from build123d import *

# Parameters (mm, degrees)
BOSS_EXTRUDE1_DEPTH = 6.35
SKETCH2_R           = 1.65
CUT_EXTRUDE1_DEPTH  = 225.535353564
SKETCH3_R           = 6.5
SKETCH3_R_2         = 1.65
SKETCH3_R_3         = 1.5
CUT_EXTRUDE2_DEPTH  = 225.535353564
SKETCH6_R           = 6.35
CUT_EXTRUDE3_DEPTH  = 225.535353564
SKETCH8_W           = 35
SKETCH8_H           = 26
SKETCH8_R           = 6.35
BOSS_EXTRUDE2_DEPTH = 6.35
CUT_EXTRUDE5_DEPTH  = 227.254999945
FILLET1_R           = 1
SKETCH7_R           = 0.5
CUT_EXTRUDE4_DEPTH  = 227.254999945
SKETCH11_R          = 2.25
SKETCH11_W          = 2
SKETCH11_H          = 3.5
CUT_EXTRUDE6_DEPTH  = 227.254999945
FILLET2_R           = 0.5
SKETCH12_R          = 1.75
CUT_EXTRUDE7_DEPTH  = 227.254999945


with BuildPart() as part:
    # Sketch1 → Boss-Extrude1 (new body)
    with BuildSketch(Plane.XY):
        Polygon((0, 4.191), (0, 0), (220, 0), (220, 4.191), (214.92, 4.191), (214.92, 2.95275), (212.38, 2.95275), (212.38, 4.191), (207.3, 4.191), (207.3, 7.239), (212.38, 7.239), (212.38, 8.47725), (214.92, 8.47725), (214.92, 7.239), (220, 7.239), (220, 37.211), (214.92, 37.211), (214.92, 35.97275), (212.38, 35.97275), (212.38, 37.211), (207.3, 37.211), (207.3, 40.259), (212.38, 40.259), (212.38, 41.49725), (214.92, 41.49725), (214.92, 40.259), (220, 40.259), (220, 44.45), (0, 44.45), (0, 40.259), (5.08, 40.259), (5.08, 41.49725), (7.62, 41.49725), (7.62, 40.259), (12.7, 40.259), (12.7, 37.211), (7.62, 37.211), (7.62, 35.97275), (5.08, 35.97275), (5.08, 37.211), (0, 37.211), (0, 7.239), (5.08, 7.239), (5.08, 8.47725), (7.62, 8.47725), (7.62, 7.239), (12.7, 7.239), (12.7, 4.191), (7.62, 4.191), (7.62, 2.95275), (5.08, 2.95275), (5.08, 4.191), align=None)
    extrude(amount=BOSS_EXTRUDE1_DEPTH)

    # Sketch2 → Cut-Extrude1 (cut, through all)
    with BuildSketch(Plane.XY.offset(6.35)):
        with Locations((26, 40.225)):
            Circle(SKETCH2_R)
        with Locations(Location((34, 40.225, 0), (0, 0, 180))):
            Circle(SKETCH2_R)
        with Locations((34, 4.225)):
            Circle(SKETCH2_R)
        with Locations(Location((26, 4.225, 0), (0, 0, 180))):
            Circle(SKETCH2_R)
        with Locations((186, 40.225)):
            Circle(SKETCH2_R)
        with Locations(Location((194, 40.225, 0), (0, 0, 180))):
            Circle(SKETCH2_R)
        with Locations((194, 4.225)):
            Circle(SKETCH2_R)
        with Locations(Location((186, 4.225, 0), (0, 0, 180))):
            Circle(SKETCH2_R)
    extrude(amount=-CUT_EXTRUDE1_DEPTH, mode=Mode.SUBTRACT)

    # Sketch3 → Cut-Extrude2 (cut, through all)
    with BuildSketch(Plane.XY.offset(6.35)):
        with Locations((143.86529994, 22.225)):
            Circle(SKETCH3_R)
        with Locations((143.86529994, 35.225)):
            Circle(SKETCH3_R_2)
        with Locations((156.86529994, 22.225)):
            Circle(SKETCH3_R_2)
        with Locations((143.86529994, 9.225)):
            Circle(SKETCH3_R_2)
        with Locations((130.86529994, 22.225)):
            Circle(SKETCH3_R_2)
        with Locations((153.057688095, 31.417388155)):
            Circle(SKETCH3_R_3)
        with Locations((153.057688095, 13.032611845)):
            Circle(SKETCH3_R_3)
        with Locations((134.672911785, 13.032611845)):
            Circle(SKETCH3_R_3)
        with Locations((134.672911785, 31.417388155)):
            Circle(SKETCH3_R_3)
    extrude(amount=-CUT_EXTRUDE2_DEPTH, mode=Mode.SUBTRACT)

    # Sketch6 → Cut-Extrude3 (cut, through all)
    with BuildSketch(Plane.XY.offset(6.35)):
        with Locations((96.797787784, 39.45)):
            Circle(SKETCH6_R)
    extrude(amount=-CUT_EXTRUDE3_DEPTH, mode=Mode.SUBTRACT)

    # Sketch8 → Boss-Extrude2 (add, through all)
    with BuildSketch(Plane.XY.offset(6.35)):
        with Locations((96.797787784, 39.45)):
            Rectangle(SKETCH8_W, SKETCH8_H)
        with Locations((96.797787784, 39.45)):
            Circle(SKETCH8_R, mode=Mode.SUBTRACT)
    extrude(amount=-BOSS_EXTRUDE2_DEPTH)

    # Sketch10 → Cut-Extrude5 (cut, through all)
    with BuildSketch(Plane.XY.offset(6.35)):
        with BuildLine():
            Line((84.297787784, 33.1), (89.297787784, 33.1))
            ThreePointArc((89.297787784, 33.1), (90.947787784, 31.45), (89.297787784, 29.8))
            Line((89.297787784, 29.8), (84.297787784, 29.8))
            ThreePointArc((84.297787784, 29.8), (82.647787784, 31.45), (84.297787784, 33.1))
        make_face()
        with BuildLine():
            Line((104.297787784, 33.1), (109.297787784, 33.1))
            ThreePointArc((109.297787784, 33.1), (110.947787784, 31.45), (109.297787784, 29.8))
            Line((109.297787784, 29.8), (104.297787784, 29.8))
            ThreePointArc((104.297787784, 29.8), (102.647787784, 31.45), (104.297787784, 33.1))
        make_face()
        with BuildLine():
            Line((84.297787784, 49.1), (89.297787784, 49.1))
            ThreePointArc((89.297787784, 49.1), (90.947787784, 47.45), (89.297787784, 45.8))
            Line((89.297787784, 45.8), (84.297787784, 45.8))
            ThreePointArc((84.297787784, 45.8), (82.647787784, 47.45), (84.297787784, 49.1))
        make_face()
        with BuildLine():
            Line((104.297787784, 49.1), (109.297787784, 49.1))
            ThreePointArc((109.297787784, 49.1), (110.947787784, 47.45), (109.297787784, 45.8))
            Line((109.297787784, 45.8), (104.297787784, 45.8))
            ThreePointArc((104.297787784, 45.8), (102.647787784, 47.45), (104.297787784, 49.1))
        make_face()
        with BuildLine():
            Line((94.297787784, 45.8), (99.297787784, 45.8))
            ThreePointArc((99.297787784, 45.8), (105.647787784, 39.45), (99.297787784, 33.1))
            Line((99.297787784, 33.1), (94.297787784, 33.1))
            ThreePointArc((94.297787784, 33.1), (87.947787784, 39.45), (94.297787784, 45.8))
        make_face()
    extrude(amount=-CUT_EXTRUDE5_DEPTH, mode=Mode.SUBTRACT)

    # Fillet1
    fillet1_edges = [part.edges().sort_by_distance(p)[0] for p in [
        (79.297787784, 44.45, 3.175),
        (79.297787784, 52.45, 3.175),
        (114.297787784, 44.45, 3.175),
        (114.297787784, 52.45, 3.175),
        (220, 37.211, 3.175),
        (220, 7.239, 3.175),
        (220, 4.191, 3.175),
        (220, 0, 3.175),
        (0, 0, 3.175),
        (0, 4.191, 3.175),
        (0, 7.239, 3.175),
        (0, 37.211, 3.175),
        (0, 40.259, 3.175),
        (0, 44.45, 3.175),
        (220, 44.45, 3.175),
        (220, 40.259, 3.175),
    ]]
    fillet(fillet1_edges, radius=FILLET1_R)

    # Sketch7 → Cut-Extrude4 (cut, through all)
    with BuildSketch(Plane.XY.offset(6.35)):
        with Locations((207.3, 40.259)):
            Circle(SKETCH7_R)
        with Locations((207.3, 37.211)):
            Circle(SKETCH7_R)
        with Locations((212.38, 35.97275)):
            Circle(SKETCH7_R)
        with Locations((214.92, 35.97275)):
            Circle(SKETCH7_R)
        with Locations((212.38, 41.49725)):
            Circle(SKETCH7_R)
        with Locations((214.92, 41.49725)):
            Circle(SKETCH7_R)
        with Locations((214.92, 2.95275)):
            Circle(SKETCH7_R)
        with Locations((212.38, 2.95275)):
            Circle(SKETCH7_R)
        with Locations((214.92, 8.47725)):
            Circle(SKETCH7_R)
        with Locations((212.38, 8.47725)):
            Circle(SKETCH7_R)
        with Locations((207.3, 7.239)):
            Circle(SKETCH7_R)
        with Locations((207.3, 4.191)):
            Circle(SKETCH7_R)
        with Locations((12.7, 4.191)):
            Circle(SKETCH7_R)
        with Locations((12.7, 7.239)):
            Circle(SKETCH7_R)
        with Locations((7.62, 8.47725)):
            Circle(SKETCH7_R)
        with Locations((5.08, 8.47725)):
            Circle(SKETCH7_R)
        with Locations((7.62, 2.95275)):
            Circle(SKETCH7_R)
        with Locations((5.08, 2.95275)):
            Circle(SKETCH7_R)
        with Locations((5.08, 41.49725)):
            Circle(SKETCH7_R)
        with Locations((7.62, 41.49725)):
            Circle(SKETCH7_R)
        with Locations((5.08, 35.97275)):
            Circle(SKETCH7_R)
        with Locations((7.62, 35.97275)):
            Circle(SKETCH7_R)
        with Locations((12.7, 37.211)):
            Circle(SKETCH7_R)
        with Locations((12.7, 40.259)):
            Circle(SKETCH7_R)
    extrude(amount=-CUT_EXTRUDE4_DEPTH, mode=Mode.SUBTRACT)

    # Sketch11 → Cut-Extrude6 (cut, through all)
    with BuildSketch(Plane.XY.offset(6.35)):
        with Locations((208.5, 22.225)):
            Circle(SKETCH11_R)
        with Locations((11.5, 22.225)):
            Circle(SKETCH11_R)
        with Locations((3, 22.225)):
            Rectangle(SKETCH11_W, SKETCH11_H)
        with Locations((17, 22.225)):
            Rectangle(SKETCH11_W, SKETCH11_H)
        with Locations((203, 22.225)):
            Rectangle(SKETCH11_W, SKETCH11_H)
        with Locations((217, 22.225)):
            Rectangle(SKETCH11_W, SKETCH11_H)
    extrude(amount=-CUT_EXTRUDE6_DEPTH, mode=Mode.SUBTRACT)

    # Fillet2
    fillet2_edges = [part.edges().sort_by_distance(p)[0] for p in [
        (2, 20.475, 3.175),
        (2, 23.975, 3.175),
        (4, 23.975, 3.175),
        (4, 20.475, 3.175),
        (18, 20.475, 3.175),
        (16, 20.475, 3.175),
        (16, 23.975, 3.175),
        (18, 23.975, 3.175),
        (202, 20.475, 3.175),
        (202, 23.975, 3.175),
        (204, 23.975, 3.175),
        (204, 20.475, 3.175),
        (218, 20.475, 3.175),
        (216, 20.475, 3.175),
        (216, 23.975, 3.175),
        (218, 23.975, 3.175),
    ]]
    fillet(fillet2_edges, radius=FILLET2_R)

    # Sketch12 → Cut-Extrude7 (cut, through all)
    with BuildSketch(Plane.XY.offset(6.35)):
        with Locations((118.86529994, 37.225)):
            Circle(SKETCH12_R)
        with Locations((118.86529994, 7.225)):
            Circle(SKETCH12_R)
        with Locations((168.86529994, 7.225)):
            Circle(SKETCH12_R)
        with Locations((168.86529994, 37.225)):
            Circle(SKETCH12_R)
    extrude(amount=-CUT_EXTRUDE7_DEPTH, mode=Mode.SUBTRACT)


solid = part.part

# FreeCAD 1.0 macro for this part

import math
import FreeCAD as App
import Part
import Sketcher


def edges_at(feature, points):
    """Names of the edges that pass closest to the given points."""
    edges = feature.Shape.Edges
    near = lambda p: min(range(len(edges)), key=lambda i: edges[i].distToShape(Part.Vertex(*p))[0])
    return sorted({f"Edge{near(p) + 1}" for p in points})


def add_polygon(sketch, points):
    """Adds a closed chain of lines whose ends are joined by coincident constraints."""
    first, n = sketch.GeometryCount, len(points)
    for a, b in zip(points, points[1:] + points[:1]):
        sketch.addGeometry(Part.LineSegment(App.Vector(*a, 0), App.Vector(*b, 0)), False)
    for i in range(n):
        sketch.addConstraint(Sketcher.Constraint("Coincident", first + i, 2, first + (i + 1) % n, 1))

doc = App.newDocument("Part")
params = doc.addObject("Spreadsheet::Sheet", "Params")
for row, (alias, value) in enumerate([
    ("sketch1_width", "220 mm"),
    ("sketch1_width2", "5.08 mm"),
    ("sketch1_width3", "2.54 mm"),
    ("pad1_length", "6.35 mm"),
    ("sketch2_diameter", "3.3 mm"),
    ("sketch3_diameter", "13 mm"),
    ("sketch3_diameter2", "3 mm"),
    ("sketch3_diameter3", "3.3 mm"),
    ("sketch4_diameter", "12.7 mm"),
    ("sketch5_diameter", "12.7 mm"),
    ("sketch5_width", "35 mm"),
    ("sketch5_height", "26 mm"),
    ("pad2_length", "6.35 mm"),
    ("sketch6_width", "5 mm"),
    ("sketch6_radius", "1.65 mm"),
    ("sketch6_radius2", "6.35 mm"),
    ("fillet_radius", "1 mm"),
    ("sketch7_diameter", "1 mm"),
    ("sketch8_diameter", "4.5 mm"),
    ("sketch8_width", "2 mm"),
    ("sketch8_height", "3.5 mm"),
    ("fillet2_radius", "0.5 mm"),
    ("sketch9_diameter", "3.5 mm"),
], start=1):
    params.set(f"A{row}", alias)
    params.set(f"B{row}", "=" + value)
    params.setAlias(f"B{row}", alias)

body = doc.addObject("PartDesign::Body", "Body")

sketch1 = doc.addObject("Sketcher::SketchObject", "Sketch")
body.addObject(sketch1)
sketch1.AttachmentSupport = (doc.XY_Plane, [""])
sketch1.MapMode = "FlatFace"
add_polygon(sketch1, [(0, 4.2), (0, 0), (220, 0), (220, 4.2), (214.9, 4.2), (214.9, 3), (212.4, 3), (212.4, 4.2), (207.3, 4.2), (207.3, 7.2), (212.4, 7.2), (212.4, 8.5), (214.9, 8.5), (214.9, 7.2), (220, 7.2), (220, 37.2), (214.9, 37.2), (214.9, 36), (212.4, 36), (212.4, 37.2), (207.3, 37.2), (207.3, 40.3), (212.4, 40.3), (212.4, 41.5), (214.9, 41.5), (214.9, 40.3), (220, 40.3), (220, 44.5), (0, 44.5), (0, 40.3), (5.1, 40.3), (5.1, 41.5), (7.6, 41.5), (7.6, 40.3), (12.7, 40.3), (12.7, 37.2), (7.6, 37.2), (7.6, 36), (5.1, 36), (5.1, 37.2), (0, 37.2), (0, 7.2), (5.1, 7.2), (5.1, 8.5), (7.6, 8.5), (7.6, 7.2), (12.7, 7.2), (12.7, 4.2), (7.6, 4.2), (7.6, 3), (5.1, 3), (5.1, 4.2)])
sketch1.addConstraint([
    Sketcher.Constraint("Vertical", 0),
    Sketcher.Constraint("Horizontal", 1),
    Sketcher.Constraint("Vertical", 2),
    Sketcher.Constraint("Horizontal", 3),
    Sketcher.Constraint("Vertical", 4),
    Sketcher.Constraint("Horizontal", 5),
    Sketcher.Constraint("Vertical", 6),
    Sketcher.Constraint("Horizontal", 7),
    Sketcher.Constraint("Vertical", 8),
    Sketcher.Constraint("Horizontal", 9),
    Sketcher.Constraint("Vertical", 10),
    Sketcher.Constraint("Horizontal", 11),
    Sketcher.Constraint("Vertical", 12),
    Sketcher.Constraint("Horizontal", 13),
    Sketcher.Constraint("Vertical", 14),
    Sketcher.Constraint("Horizontal", 15),
    Sketcher.Constraint("Vertical", 16),
    Sketcher.Constraint("Horizontal", 17),
    Sketcher.Constraint("Vertical", 18),
    Sketcher.Constraint("Horizontal", 19),
    Sketcher.Constraint("Vertical", 20),
    Sketcher.Constraint("Horizontal", 21),
    Sketcher.Constraint("Vertical", 22),
    Sketcher.Constraint("Horizontal", 23),
    Sketcher.Constraint("Vertical", 24),
    Sketcher.Constraint("Horizontal", 25),
    Sketcher.Constraint("Vertical", 26),
    Sketcher.Constraint("Horizontal", 27),
    Sketcher.Constraint("Vertical", 28),
    Sketcher.Constraint("Horizontal", 29),
    Sketcher.Constraint("Vertical", 30),
    Sketcher.Constraint("Horizontal", 31),
    Sketcher.Constraint("Vertical", 32),
    Sketcher.Constraint("Horizontal", 33),
    Sketcher.Constraint("Vertical", 34),
    Sketcher.Constraint("Horizontal", 35),
    Sketcher.Constraint("Vertical", 36),
    Sketcher.Constraint("Horizontal", 37),
    Sketcher.Constraint("Vertical", 38),
    Sketcher.Constraint("Horizontal", 39),
    Sketcher.Constraint("Vertical", 40),
    Sketcher.Constraint("Horizontal", 41),
    Sketcher.Constraint("Vertical", 42),
    Sketcher.Constraint("Horizontal", 43),
    Sketcher.Constraint("Vertical", 44),
    Sketcher.Constraint("Horizontal", 45),
    Sketcher.Constraint("Vertical", 46),
    Sketcher.Constraint("Horizontal", 47),
    Sketcher.Constraint("Vertical", 48),
    Sketcher.Constraint("Horizontal", 49),
    Sketcher.Constraint("Vertical", 50),
    Sketcher.Constraint("Horizontal", 51),
    Sketcher.Constraint("Coincident", 0, 2, -1, 1),
    Sketcher.Constraint("PointOnObject", 27, 2, -2),
    Sketcher.Constraint("PointOnObject", 39, 2, -2),
    Sketcher.Constraint("Horizontal", 3, 2, 6, 2),
    Sketcher.Constraint("Horizontal", 9, 2, 12, 2),
    Sketcher.Constraint("Horizontal", 15, 2, 18, 2),
    Sketcher.Constraint("Horizontal", 21, 2, 24, 2),
    Sketcher.Constraint("Horizontal", 25, 2, 28, 2),
    Sketcher.Constraint("Horizontal", 23, 2, 30, 2),
    Sketcher.Constraint("Horizontal", 29, 2, 32, 2),
    Sketcher.Constraint("Horizontal", 19, 2, 34, 2),
    Sketcher.Constraint("Horizontal", 17, 2, 36, 2),
    Sketcher.Constraint("Horizontal", 35, 2, 38, 2),
    Sketcher.Constraint("Horizontal", 13, 2, 40, 2),
    Sketcher.Constraint("Horizontal", 11, 2, 42, 2),
    Sketcher.Constraint("Horizontal", 41, 2, 44, 2),
    Sketcher.Constraint("Horizontal", 7, 2, 46, 2),
    Sketcher.Constraint("Horizontal", 5, 2, 48, 2),
    Sketcher.Constraint("Horizontal", 47, 2, 50, 2),
    Sketcher.Constraint("Vertical", 6, 2, 9, 2),
    Sketcher.Constraint("Vertical", 4, 2, 11, 2),
    Sketcher.Constraint("Vertical", 2, 2, 13, 2),
    Sketcher.Constraint("Vertical", 12, 2, 15, 2),
    Sketcher.Constraint("Vertical", 10, 2, 17, 2),
    Sketcher.Constraint("Vertical", 8, 2, 19, 2),
    Sketcher.Constraint("Vertical", 18, 2, 21, 2),
    Sketcher.Constraint("Vertical", 16, 2, 23, 2),
    Sketcher.Constraint("Vertical", 14, 2, 25, 2),
    Sketcher.Constraint("Vertical", 32, 2, 35, 2),
    Sketcher.Constraint("Vertical", 30, 2, 37, 2),
    Sketcher.Constraint("Vertical", 38, 2, 41, 2),
    Sketcher.Constraint("Vertical", 36, 2, 43, 2),
    Sketcher.Constraint("Vertical", 34, 2, 45, 2),
    Sketcher.Constraint("Vertical", 44, 2, 47, 2),
    Sketcher.Constraint("Vertical", 42, 2, 49, 2),
    Sketcher.Constraint("Equal", 3, 7),
    Sketcher.Constraint("Equal", 25, 29),
    Sketcher.Constraint("Equal", 23, 31),
    Sketcher.Constraint("Equal", 29, 33),
    Sketcher.Constraint("Equal", 6, 10),
    Sketcher.Constraint("Equal", 12, 16),
    Sketcher.Constraint("Equal", 8, 20),
    Sketcher.Constraint("Equal", 18, 22),
    Sketcher.Constraint("Equal", 2, 26),
    Sketcher.Constraint("DistanceX", 1, 1, 1, 2, 220.0),
    Sketcher.Constraint("DistanceX", 3, 2, 3, 1, 5.08),
    Sketcher.Constraint("DistanceX", 5, 2, 5, 1, 2.54),
    Sketcher.Constraint("DistanceY", 0, 2, 0, 1, 4.191),
    Sketcher.Constraint("DistanceY", 8, 1, 8, 2, 3.048),
    Sketcher.Constraint("DistanceY", 14, 1, 14, 2, 29.972),
    Sketcher.Constraint("DistanceY", 4, 2, 4, 1, 1.23825),
])
sketch1.setExpression("Constraints[148]", "Params.sketch1_width")
sketch1.setExpression("Constraints[149]", "Params.sketch1_width2")
sketch1.setExpression("Constraints[150]", "Params.sketch1_width3")
pad1 = doc.addObject("PartDesign::Pad", "Pad")
body.addObject(pad1)
pad1.Profile = sketch1
pad1.setExpression("Length", "Params.pad1_length")

sketch2 = doc.addObject("Sketcher::SketchObject", "Sketch001")
body.addObject(sketch2)
sketch2.AttachmentSupport = (doc.XY_Plane, [""])
sketch2.MapMode = "FlatFace"
sketch2.AttachmentOffset = App.Placement(App.Vector(0, 0, 6.35), App.Rotation())
sketch2.addGeometry([
    Part.Circle(App.Vector(26, 40.2, 0), App.Vector(0, 0, 1), 1.6),
    Part.Circle(App.Vector(34, 40.2, 0), App.Vector(0, 0, 1), 1.6),
    Part.Circle(App.Vector(34, 4.2, 0), App.Vector(0, 0, 1), 1.6),
    Part.Circle(App.Vector(26, 4.2, 0), App.Vector(0, 0, 1), 1.6),
    Part.Circle(App.Vector(186, 40.2, 0), App.Vector(0, 0, 1), 1.6),
    Part.Circle(App.Vector(194, 40.2, 0), App.Vector(0, 0, 1), 1.6),
    Part.Circle(App.Vector(194, 4.2, 0), App.Vector(0, 0, 1), 1.6),
    Part.Circle(App.Vector(186, 4.2, 0), App.Vector(0, 0, 1), 1.6),
], False)
sketch2.addConstraint([
    Sketcher.Constraint("Equal", 0, 1),
    Sketcher.Constraint("Equal", 1, 2),
    Sketcher.Constraint("Equal", 2, 3),
    Sketcher.Constraint("Equal", 3, 4),
    Sketcher.Constraint("Equal", 4, 5),
    Sketcher.Constraint("Equal", 5, 6),
    Sketcher.Constraint("Equal", 6, 7),
    Sketcher.Constraint("Horizontal", 0, 3, 1, 3),
    Sketcher.Constraint("Horizontal", 2, 3, 3, 3),
    Sketcher.Constraint("Horizontal", 1, 3, 4, 3),
    Sketcher.Constraint("Horizontal", 4, 3, 5, 3),
    Sketcher.Constraint("Horizontal", 3, 3, 6, 3),
    Sketcher.Constraint("Horizontal", 6, 3, 7, 3),
    Sketcher.Constraint("Vertical", 1, 3, 2, 3),
    Sketcher.Constraint("Vertical", 0, 3, 3, 3),
    Sketcher.Constraint("Vertical", 5, 3, 6, 3),
    Sketcher.Constraint("Vertical", 4, 3, 7, 3),
    Sketcher.Constraint("Diameter", 0, 3.3),
    Sketcher.Constraint("DistanceX", -1, 1, 0, 3, 26.0),
    Sketcher.Constraint("DistanceX", -1, 1, 1, 3, 34.0),
    Sketcher.Constraint("DistanceX", -1, 1, 4, 3, 186.0),
    Sketcher.Constraint("DistanceX", -1, 1, 5, 3, 194.0),
    Sketcher.Constraint("DistanceY", 2, 3, 1, 3, 36.0),
    Sketcher.Constraint("DistanceY", -1, 1, 0, 3, 40.225),
])
sketch2.setExpression("Constraints[17]", "Params.sketch2_diameter")
pocket1 = doc.addObject("PartDesign::Pocket", "Pocket")
body.addObject(pocket1)
pocket1.Profile = sketch2
pocket1.Type = "ThroughAll"

sketch3 = doc.addObject("Sketcher::SketchObject", "Sketch002")
body.addObject(sketch3)
sketch3.AttachmentSupport = (doc.XY_Plane, [""])
sketch3.MapMode = "FlatFace"
sketch3.AttachmentOffset = App.Placement(App.Vector(0, 0, 6.35), App.Rotation())
sketch3.addGeometry([
    Part.Circle(App.Vector(143.9, 22.2, 0), App.Vector(0, 0, 1), 6.5),
    Part.Circle(App.Vector(143.9, 35.2, 0), App.Vector(0, 0, 1), 1.6),
    Part.Circle(App.Vector(156.9, 22.2, 0), App.Vector(0, 0, 1), 1.6),
    Part.Circle(App.Vector(143.9, 9.2, 0), App.Vector(0, 0, 1), 1.6),
    Part.Circle(App.Vector(130.9, 22.2, 0), App.Vector(0, 0, 1), 1.6),
    Part.Circle(App.Vector(153.1, 31.4, 0), App.Vector(0, 0, 1), 1.5),
    Part.Circle(App.Vector(153.1, 13, 0), App.Vector(0, 0, 1), 1.5),
    Part.Circle(App.Vector(134.7, 13, 0), App.Vector(0, 0, 1), 1.5),
    Part.Circle(App.Vector(134.7, 31.4, 0), App.Vector(0, 0, 1), 1.5),
], False)
sketch3.addConstraint([
    Sketcher.Constraint("Equal", 1, 2),
    Sketcher.Constraint("Equal", 2, 3),
    Sketcher.Constraint("Equal", 3, 4),
    Sketcher.Constraint("Equal", 5, 6),
    Sketcher.Constraint("Equal", 6, 7),
    Sketcher.Constraint("Equal", 7, 8),
    Sketcher.Constraint("Horizontal", 0, 3, 2, 3),
    Sketcher.Constraint("Horizontal", 2, 3, 4, 3),
    Sketcher.Constraint("Horizontal", 6, 3, 7, 3),
    Sketcher.Constraint("Horizontal", 5, 3, 8, 3),
    Sketcher.Constraint("Vertical", 0, 3, 1, 3),
    Sketcher.Constraint("Vertical", 1, 3, 3, 3),
    Sketcher.Constraint("Vertical", 5, 3, 6, 3),
    Sketcher.Constraint("Vertical", 7, 3, 8, 3),
    Sketcher.Constraint("Diameter", 0, 13.0),
    Sketcher.Constraint("Diameter", 5, 3.0),
    Sketcher.Constraint("Diameter", 1, 3.3),
    Sketcher.Constraint("DistanceY", 0, 3, 1, 3, 13.0),
    Sketcher.Constraint("DistanceX", 0, 3, 2, 3, 13.0),
    Sketcher.Constraint("DistanceY", 3, 3, 0, 3, 13.0),
    Sketcher.Constraint("DistanceX", 4, 3, 0, 3, 13.0),
    Sketcher.Constraint("DistanceY", -1, 1, 0, 3, 22.225),
    Sketcher.Constraint("DistanceX", -1, 1, 0, 3, 143.8653),
    Sketcher.Constraint("DistanceX", -1, 1, 5, 3, 153.057688),
    Sketcher.Constraint("DistanceY", -1, 1, 5, 3, 31.417388),
    Sketcher.Constraint("DistanceY", -1, 1, 6, 3, 13.032612),
    Sketcher.Constraint("DistanceX", -1, 1, 7, 3, 134.672912),
])
sketch3.setExpression("Constraints[14]", "Params.sketch3_diameter")
sketch3.setExpression("Constraints[15]", "Params.sketch3_diameter2")
sketch3.setExpression("Constraints[16]", "Params.sketch3_diameter3")
pocket2 = doc.addObject("PartDesign::Pocket", "Pocket001")
body.addObject(pocket2)
pocket2.Profile = sketch3
pocket2.Type = "ThroughAll"

sketch4 = doc.addObject("Sketcher::SketchObject", "Sketch003")
body.addObject(sketch4)
sketch4.AttachmentSupport = (doc.XY_Plane, [""])
sketch4.MapMode = "FlatFace"
sketch4.AttachmentOffset = App.Placement(App.Vector(0, 0, 6.35), App.Rotation())
sketch4.addGeometry(Part.Circle(App.Vector(97, 39, 0), App.Vector(0, 0, 1), 6), False)
sketch4.addConstraint([
    Sketcher.Constraint("Diameter", 0, 12.7),
    Sketcher.Constraint("DistanceY", -1, 1, 0, 3, 39.45),
    Sketcher.Constraint("DistanceX", -1, 1, 0, 3, 96.797788),
])
sketch4.setExpression("Constraints[0]", "Params.sketch4_diameter")
pocket3 = doc.addObject("PartDesign::Pocket", "Pocket002")
body.addObject(pocket3)
pocket3.Profile = sketch4
pocket3.Type = "ThroughAll"

sketch5 = doc.addObject("Sketcher::SketchObject", "Sketch004")
body.addObject(sketch5)
sketch5.AttachmentSupport = (doc.XY_Plane, [""])
sketch5.MapMode = "FlatFace"
sketch5.AttachmentOffset = App.Placement(App.Vector(0, 0, 6.35), App.Rotation())
add_polygon(sketch5, [(79, 52), (79, 26), (114, 26), (114, 52)])
sketch5.addGeometry(Part.Circle(App.Vector(97, 39, 0), App.Vector(0, 0, 1), 6), False)
sketch5.addConstraint([
    Sketcher.Constraint("Vertical", 0),
    Sketcher.Constraint("Horizontal", 1),
    Sketcher.Constraint("Vertical", 2),
    Sketcher.Constraint("Horizontal", 3),
    Sketcher.Constraint("Diameter", 4, 12.7),
    Sketcher.Constraint("DistanceX", 1, 1, 1, 2, 35.0),
    Sketcher.Constraint("DistanceY", 0, 2, 0, 1, 26.0),
    Sketcher.Constraint("DistanceY", 0, 2, 4, 3, 13.0),
    Sketcher.Constraint("DistanceX", 0, 2, 4, 3, 17.5),
    Sketcher.Constraint("DistanceY", -1, 1, 4, 3, 39.45),
    Sketcher.Constraint("DistanceX", -1, 1, 4, 3, 96.797788),
])
sketch5.setExpression("Constraints[8]", "Params.sketch5_diameter")
sketch5.setExpression("Constraints[9]", "Params.sketch5_width")
sketch5.setExpression("Constraints[10]", "Params.sketch5_height")
pad2 = doc.addObject("PartDesign::Pad", "Pad001")
body.addObject(pad2)
pad2.Profile = sketch5
pad2.setExpression("Length", "Params.pad2_length")
pad2.Reversed = True

sketch6 = doc.addObject("Sketcher::SketchObject", "Sketch005")
body.addObject(sketch6)
sketch6.AttachmentSupport = (doc.XY_Plane, [""])
sketch6.MapMode = "FlatFace"
sketch6.AttachmentOffset = App.Placement(App.Vector(0, 0, 6.35), App.Rotation())
sketch6.addGeometry([
    Part.LineSegment(App.Vector(89.3, 33.1, 0), App.Vector(84.3, 33.1, 0)),
    Part.ArcOfCircle(Part.Circle(App.Vector(84.3, 31.4, 0), App.Vector(0, 0, 1), 1.6), math.radians(90), math.radians(270)),
    Part.LineSegment(App.Vector(84.3, 29.8, 0), App.Vector(89.3, 29.8, 0)),
    Part.ArcOfCircle(Part.Circle(App.Vector(89.3, 31.4, 0), App.Vector(0, 0, 1), 1.6), math.radians(-90), math.radians(90)),
    Part.LineSegment(App.Vector(109.3, 33.1, 0), App.Vector(104.3, 33.1, 0)),
    Part.ArcOfCircle(Part.Circle(App.Vector(104.3, 31.4, 0), App.Vector(0, 0, 1), 1.6), math.radians(90), math.radians(270)),
    Part.LineSegment(App.Vector(104.3, 29.8, 0), App.Vector(109.3, 29.8, 0)),
    Part.ArcOfCircle(Part.Circle(App.Vector(109.3, 31.4, 0), App.Vector(0, 0, 1), 1.6), math.radians(-90), math.radians(90)),
    Part.LineSegment(App.Vector(89.3, 49.1, 0), App.Vector(84.3, 49.1, 0)),
    Part.ArcOfCircle(Part.Circle(App.Vector(84.3, 47.5, 0), App.Vector(0, 0, 1), 1.6), math.radians(90), math.radians(270)),
    Part.LineSegment(App.Vector(84.3, 45.8, 0), App.Vector(89.3, 45.8, 0)),
    Part.ArcOfCircle(Part.Circle(App.Vector(89.3, 47.5, 0), App.Vector(0, 0, 1), 1.6), math.radians(-90), math.radians(90)),
    Part.LineSegment(App.Vector(109.3, 49.1, 0), App.Vector(104.3, 49.1, 0)),
    Part.ArcOfCircle(Part.Circle(App.Vector(104.3, 47.5, 0), App.Vector(0, 0, 1), 1.6), math.radians(90), math.radians(270)),
    Part.LineSegment(App.Vector(104.3, 45.8, 0), App.Vector(109.3, 45.8, 0)),
    Part.ArcOfCircle(Part.Circle(App.Vector(109.3, 47.5, 0), App.Vector(0, 0, 1), 1.6), math.radians(-90), math.radians(90)),
    Part.LineSegment(App.Vector(99.3, 45.8, 0), App.Vector(94.3, 45.8, 0)),
    Part.ArcOfCircle(Part.Circle(App.Vector(94.3, 39.5, 0), App.Vector(0, 0, 1), 6.3), math.radians(90), math.radians(270)),
    Part.LineSegment(App.Vector(94.3, 33.1, 0), App.Vector(99.3, 33.1, 0)),
    Part.ArcOfCircle(Part.Circle(App.Vector(99.3, 39.5, 0), App.Vector(0, 0, 1), 6.3), math.radians(-90), math.radians(90)),
], False)
sketch6.addConstraint([
    Sketcher.Constraint("Tangent", 0, 2, 1, 1),
    Sketcher.Constraint("Tangent", 1, 2, 2, 1),
    Sketcher.Constraint("Tangent", 2, 2, 3, 1),
    Sketcher.Constraint("Tangent", 3, 2, 0, 1),
    Sketcher.Constraint("Tangent", 4, 2, 5, 1),
    Sketcher.Constraint("Tangent", 5, 2, 6, 1),
    Sketcher.Constraint("Tangent", 6, 2, 7, 1),
    Sketcher.Constraint("Tangent", 7, 2, 4, 1),
    Sketcher.Constraint("Tangent", 8, 2, 9, 1),
    Sketcher.Constraint("Tangent", 9, 2, 10, 1),
    Sketcher.Constraint("Tangent", 10, 2, 11, 1),
    Sketcher.Constraint("Tangent", 11, 2, 8, 1),
    Sketcher.Constraint("Tangent", 12, 2, 13, 1),
    Sketcher.Constraint("Tangent", 13, 2, 14, 1),
    Sketcher.Constraint("Tangent", 14, 2, 15, 1),
    Sketcher.Constraint("Tangent", 15, 2, 12, 1),
    Sketcher.Constraint("Tangent", 16, 2, 17, 1),
    Sketcher.Constraint("Tangent", 17, 2, 18, 1),
    Sketcher.Constraint("Tangent", 18, 2, 19, 1),
    Sketcher.Constraint("Tangent", 19, 2, 16, 1),
    Sketcher.Constraint("Horizontal", 0),
    Sketcher.Constraint("Horizontal", 2),
    Sketcher.Constraint("Horizontal", 4),
    Sketcher.Constraint("Horizontal", 6),
    Sketcher.Constraint("Horizontal", 8),
    Sketcher.Constraint("Horizontal", 10),
    Sketcher.Constraint("Horizontal", 12),
    Sketcher.Constraint("Horizontal", 14),
    Sketcher.Constraint("Horizontal", 16),
    Sketcher.Constraint("Horizontal", 18),
    Sketcher.Constraint("Equal", 3, 5),
    Sketcher.Constraint("Equal", 7, 9),
    Sketcher.Constraint("Equal", 11, 13),
    Sketcher.Constraint("Horizontal", 3, 3, 5, 3),
    Sketcher.Constraint("Horizontal", 11, 3, 13, 3),
    Sketcher.Constraint("Horizontal", 14, 2, 16, 2),
    Sketcher.Constraint("Horizontal", 7, 2, 17, 2),
    Sketcher.Constraint("Vertical", 1, 3, 9, 3),
    Sketcher.Constraint("Vertical", 3, 3, 11, 3),
    Sketcher.Constraint("Vertical", 5, 3, 13, 3),
    Sketcher.Constraint("Vertical", 7, 3, 15, 3),
    Sketcher.Constraint("Equal", 2, 4),
    Sketcher.Constraint("Equal", 14, 16),
    Sketcher.Constraint("DistanceX", 0, 2, 0, 1, 5.0),
    Sketcher.Constraint("Radius", 1, 1.65),
    Sketcher.Constraint("Radius", 17, 6.35),
    Sketcher.Constraint("DistanceX", 3, 3, 5, 3, 15.0),
    Sketcher.Constraint("DistanceX", 11, 3, 17, 3, 5.0),
    Sketcher.Constraint("DistanceY", -1, 1, 0, 2, 33.1),
    Sketcher.Constraint("DistanceX", -1, 1, 1, 3, 84.297788),
])
sketch6.setExpression("Constraints[43]", "Params.sketch6_width")
sketch6.setExpression("Constraints[44]", "Params.sketch6_radius")
sketch6.setExpression("Constraints[45]", "Params.sketch6_radius2")
pocket4 = doc.addObject("PartDesign::Pocket", "Pocket003")
body.addObject(pocket4)
pocket4.Profile = sketch6
pocket4.Type = "ThroughAll"
doc.recompute()

fillet = doc.addObject("PartDesign::Fillet", "Fillet")
body.addObject(fillet)
fillet.Base = (pocket4, edges_at(pocket4, [
    (79.298, 44.45, 3.175),
    (79.298, 52.45, 3.175),
    (114.298, 44.45, 3.175),
    (114.298, 52.45, 3.175),
    (220, 37.211, 3.175),
    (220, 7.239, 3.175),
    (220, 4.191, 3.175),
    (220, 0, 3.175),
    (0, 0, 3.175),
    (0, 4.191, 3.175),
    (0, 7.239, 3.175),
    (0, 37.211, 3.175),
    (0, 40.259, 3.175),
    (0, 44.45, 3.175),
    (220, 44.45, 3.175),
    (220, 40.259, 3.175),
]))
fillet.setExpression("Radius", "Params.fillet_radius")

sketch7 = doc.addObject("Sketcher::SketchObject", "Sketch006")
body.addObject(sketch7)
sketch7.AttachmentSupport = (doc.XY_Plane, [""])
sketch7.MapMode = "FlatFace"
sketch7.AttachmentOffset = App.Placement(App.Vector(0, 0, 6.35), App.Rotation())
sketch7.addGeometry([
    Part.Circle(App.Vector(207.3, 40.3, 0), App.Vector(0, 0, 1), 0.5),
    Part.Circle(App.Vector(207.3, 37.2, 0), App.Vector(0, 0, 1), 0.5),
    Part.Circle(App.Vector(212.4, 36, 0), App.Vector(0, 0, 1), 0.5),
    Part.Circle(App.Vector(214.9, 36, 0), App.Vector(0, 0, 1), 0.5),
    Part.Circle(App.Vector(212.4, 41.5, 0), App.Vector(0, 0, 1), 0.5),
    Part.Circle(App.Vector(214.9, 41.5, 0), App.Vector(0, 0, 1), 0.5),
    Part.Circle(App.Vector(214.9, 3, 0), App.Vector(0, 0, 1), 0.5),
    Part.Circle(App.Vector(212.4, 3, 0), App.Vector(0, 0, 1), 0.5),
    Part.Circle(App.Vector(214.9, 8.5, 0), App.Vector(0, 0, 1), 0.5),
    Part.Circle(App.Vector(212.4, 8.5, 0), App.Vector(0, 0, 1), 0.5),
    Part.Circle(App.Vector(207.3, 7.2, 0), App.Vector(0, 0, 1), 0.5),
    Part.Circle(App.Vector(207.3, 4.2, 0), App.Vector(0, 0, 1), 0.5),
    Part.Circle(App.Vector(12.7, 4.2, 0), App.Vector(0, 0, 1), 0.5),
    Part.Circle(App.Vector(12.7, 7.2, 0), App.Vector(0, 0, 1), 0.5),
    Part.Circle(App.Vector(7.6, 8.5, 0), App.Vector(0, 0, 1), 0.5),
    Part.Circle(App.Vector(5.1, 8.5, 0), App.Vector(0, 0, 1), 0.5),
    Part.Circle(App.Vector(7.6, 3, 0), App.Vector(0, 0, 1), 0.5),
    Part.Circle(App.Vector(5.1, 3, 0), App.Vector(0, 0, 1), 0.5),
    Part.Circle(App.Vector(5.1, 41.5, 0), App.Vector(0, 0, 1), 0.5),
    Part.Circle(App.Vector(7.6, 41.5, 0), App.Vector(0, 0, 1), 0.5),
    Part.Circle(App.Vector(5.1, 36, 0), App.Vector(0, 0, 1), 0.5),
    Part.Circle(App.Vector(7.6, 36, 0), App.Vector(0, 0, 1), 0.5),
    Part.Circle(App.Vector(12.7, 37.2, 0), App.Vector(0, 0, 1), 0.5),
    Part.Circle(App.Vector(12.7, 40.3, 0), App.Vector(0, 0, 1), 0.5),
], False)
sketch7.addConstraint([
    Sketcher.Constraint("Equal", 0, 1),
    Sketcher.Constraint("Equal", 1, 2),
    Sketcher.Constraint("Equal", 2, 3),
    Sketcher.Constraint("Equal", 3, 4),
    Sketcher.Constraint("Equal", 4, 5),
    Sketcher.Constraint("Equal", 5, 6),
    Sketcher.Constraint("Equal", 6, 7),
    Sketcher.Constraint("Equal", 7, 8),
    Sketcher.Constraint("Equal", 8, 9),
    Sketcher.Constraint("Equal", 9, 10),
    Sketcher.Constraint("Equal", 10, 11),
    Sketcher.Constraint("Equal", 11, 12),
    Sketcher.Constraint("Equal", 12, 13),
    Sketcher.Constraint("Equal", 13, 14),
    Sketcher.Constraint("Equal", 14, 15),
    Sketcher.Constraint("Equal", 15, 16),
    Sketcher.Constraint("Equal", 16, 17),
    Sketcher.Constraint("Equal", 17, 18),
    Sketcher.Constraint("Equal", 18, 19),
    Sketcher.Constraint("Equal", 19, 20),
    Sketcher.Constraint("Equal", 20, 21),
    Sketcher.Constraint("Equal", 21, 22),
    Sketcher.Constraint("Equal", 22, 23),
    Sketcher.Constraint("Horizontal", 2, 3, 3, 3),
    Sketcher.Constraint("Horizontal", 4, 3, 5, 3),
    Sketcher.Constraint("Horizontal", 6, 3, 7, 3),
    Sketcher.Constraint("Horizontal", 8, 3, 9, 3),
    Sketcher.Constraint("Horizontal", 11, 3, 12, 3),
    Sketcher.Constraint("Horizontal", 10, 3, 13, 3),
    Sketcher.Constraint("Horizontal", 9, 3, 14, 3),
    Sketcher.Constraint("Horizontal", 14, 3, 15, 3),
    Sketcher.Constraint("Horizontal", 7, 3, 16, 3),
    Sketcher.Constraint("Horizontal", 16, 3, 17, 3),
    Sketcher.Constraint("Horizontal", 5, 3, 18, 3),
    Sketcher.Constraint("Horizontal", 18, 3, 19, 3),
    Sketcher.Constraint("Horizontal", 3, 3, 20, 3),
    Sketcher.Constraint("Horizontal", 20, 3, 21, 3),
    Sketcher.Constraint("Horizontal", 1, 3, 22, 3),
    Sketcher.Constraint("Horizontal", 0, 3, 23, 3),
    Sketcher.Constraint("Vertical", 0, 3, 1, 3),
    Sketcher.Constraint("Vertical", 2, 3, 4, 3),
    Sketcher.Constraint("Vertical", 3, 3, 5, 3),
    Sketcher.Constraint("Vertical", 5, 3, 6, 3),
    Sketcher.Constraint("Vertical", 4, 3, 7, 3),
    Sketcher.Constraint("Vertical", 6, 3, 8, 3),
    Sketcher.Constraint("Vertical", 7, 3, 9, 3),
    Sketcher.Constraint("Vertical", 1, 3, 10, 3),
    Sketcher.Constraint("Vertical", 10, 3, 11, 3),
    Sketcher.Constraint("Vertical", 12, 3, 13, 3),
    Sketcher.Constraint("Vertical", 14, 3, 16, 3),
    Sketcher.Constraint("Vertical", 15, 3, 17, 3),
    Sketcher.Constraint("Vertical", 17, 3, 18, 3),
    Sketcher.Constraint("Vertical", 16, 3, 19, 3),
    Sketcher.Constraint("Vertical", 18, 3, 20, 3),
    Sketcher.Constraint("Vertical", 19, 3, 21, 3),
    Sketcher.Constraint("Vertical", 13, 3, 22, 3),
    Sketcher.Constraint("Vertical", 22, 3, 23, 3),
    Sketcher.Constraint("Diameter", 0, 1.0),
    Sketcher.Constraint("DistanceX", -1, 1, 0, 3, 207.3),
    Sketcher.Constraint("DistanceX", -1, 1, 12, 3, 12.7),
    Sketcher.Constraint("DistanceX", -1, 1, 2, 3, 212.38),
    Sketcher.Constraint("DistanceX", -1, 1, 3, 3, 214.92),
    Sketcher.Constraint("DistanceX", -1, 1, 14, 3, 7.62),
    Sketcher.Constraint("DistanceX", -1, 1, 15, 3, 5.08),
    Sketcher.Constraint("DistanceY", 6, 3, 3, 3, 33.02),
    Sketcher.Constraint("DistanceY", 12, 3, 1, 3, 33.02),
    Sketcher.Constraint("DistanceY", 13, 3, 0, 3, 33.02),
    Sketcher.Constraint("DistanceY", 15, 3, 18, 3, 33.02),
    Sketcher.Constraint("DistanceY", -1, 1, 0, 3, 40.259),
    Sketcher.Constraint("DistanceY", -1, 1, 1, 3, 37.211),
    Sketcher.Constraint("DistanceY", 2, 3, 4, 3, 5.5245),
    Sketcher.Constraint("DistanceY", -1, 1, 2, 3, 35.97275),
])
sketch7.setExpression("Constraints[57]", "Params.sketch7_diameter")
pocket5 = doc.addObject("PartDesign::Pocket", "Pocket004")
body.addObject(pocket5)
pocket5.Profile = sketch7
pocket5.Type = "ThroughAll"

sketch8 = doc.addObject("Sketcher::SketchObject", "Sketch007")
body.addObject(sketch8)
sketch8.AttachmentSupport = (doc.XY_Plane, [""])
sketch8.MapMode = "FlatFace"
sketch8.AttachmentOffset = App.Placement(App.Vector(0, 0, 6.35), App.Rotation())
sketch8.addGeometry(Part.Circle(App.Vector(208.5, 22.2, 0), App.Vector(0, 0, 1), 2.2), False)
sketch8.addGeometry(Part.Circle(App.Vector(11.5, 22.2, 0), App.Vector(0, 0, 1), 2.2), False)
add_polygon(sketch8, [(2, 24), (2, 20.5), (4, 20.5), (4, 24)])
add_polygon(sketch8, [(16, 24), (16, 20.5), (18, 20.5), (18, 24)])
add_polygon(sketch8, [(202, 24), (202, 20.5), (204, 20.5), (204, 24)])
add_polygon(sketch8, [(216, 24), (216, 20.5), (218, 20.5), (218, 24)])
sketch8.addConstraint([
    Sketcher.Constraint("Vertical", 2),
    Sketcher.Constraint("Horizontal", 3),
    Sketcher.Constraint("Vertical", 4),
    Sketcher.Constraint("Horizontal", 5),
    Sketcher.Constraint("Vertical", 6),
    Sketcher.Constraint("Horizontal", 7),
    Sketcher.Constraint("Vertical", 8),
    Sketcher.Constraint("Horizontal", 9),
    Sketcher.Constraint("Vertical", 10),
    Sketcher.Constraint("Horizontal", 11),
    Sketcher.Constraint("Vertical", 12),
    Sketcher.Constraint("Horizontal", 13),
    Sketcher.Constraint("Vertical", 14),
    Sketcher.Constraint("Horizontal", 15),
    Sketcher.Constraint("Vertical", 16),
    Sketcher.Constraint("Horizontal", 17),
    Sketcher.Constraint("Equal", 0, 1),
    Sketcher.Constraint("Horizontal", 0, 3, 1, 3),
    Sketcher.Constraint("Horizontal", 3, 2, 6, 2),
    Sketcher.Constraint("Horizontal", 5, 2, 8, 2),
    Sketcher.Constraint("Horizontal", 7, 2, 10, 2),
    Sketcher.Constraint("Horizontal", 9, 2, 12, 2),
    Sketcher.Constraint("Horizontal", 11, 2, 14, 2),
    Sketcher.Constraint("Horizontal", 13, 2, 16, 2),
    Sketcher.Constraint("Equal", 5, 7),
    Sketcher.Constraint("Equal", 9, 11),
    Sketcher.Constraint("Equal", 13, 15),
    Sketcher.Constraint("Diameter", 0, 4.5),
    Sketcher.Constraint("DistanceX", 3, 1, 3, 2, 2.0),
    Sketcher.Constraint("DistanceY", 2, 2, 2, 1, 3.5),
    Sketcher.Constraint("DistanceX", -1, 1, 2, 2, 2.0),
    Sketcher.Constraint("DistanceX", -1, 1, 6, 2, 16.0),
    Sketcher.Constraint("DistanceX", -1, 1, 10, 2, 202.0),
    Sketcher.Constraint("DistanceX", -1, 1, 14, 2, 216.0),
    Sketcher.Constraint("DistanceX", 1, 3, 0, 3, 197.0),
    Sketcher.Constraint("DistanceX", -1, 1, 0, 3, 208.5),
    Sketcher.Constraint("DistanceY", 2, 2, 1, 3, 1.75),
    Sketcher.Constraint("DistanceY", -1, 1, 0, 3, 22.225),
])
sketch8.setExpression("Constraints[43]", "Params.sketch8_diameter")
sketch8.setExpression("Constraints[44]", "Params.sketch8_width")
sketch8.setExpression("Constraints[45]", "Params.sketch8_height")
pocket6 = doc.addObject("PartDesign::Pocket", "Pocket005")
body.addObject(pocket6)
pocket6.Profile = sketch8
pocket6.Type = "ThroughAll"
doc.recompute()

fillet2 = doc.addObject("PartDesign::Fillet", "Fillet001")
body.addObject(fillet2)
fillet2.Base = (pocket6, edges_at(pocket6, [
    (2, 20.475, 3.175),
    (2, 23.975, 3.175),
    (4, 23.975, 3.175),
    (4, 20.475, 3.175),
    (18, 20.475, 3.175),
    (16, 20.475, 3.175),
    (16, 23.975, 3.175),
    (18, 23.975, 3.175),
    (202, 20.475, 3.175),
    (202, 23.975, 3.175),
    (204, 23.975, 3.175),
    (204, 20.475, 3.175),
    (218, 20.475, 3.175),
    (216, 20.475, 3.175),
    (216, 23.975, 3.175),
    (218, 23.975, 3.175),
]))
fillet2.setExpression("Radius", "Params.fillet2_radius")

sketch9 = doc.addObject("Sketcher::SketchObject", "Sketch008")
body.addObject(sketch9)
sketch9.AttachmentSupport = (doc.XY_Plane, [""])
sketch9.MapMode = "FlatFace"
sketch9.AttachmentOffset = App.Placement(App.Vector(0, 0, 6.35), App.Rotation())
sketch9.addGeometry([
    Part.Circle(App.Vector(118.9, 37.2, 0), App.Vector(0, 0, 1), 1.8),
    Part.Circle(App.Vector(118.9, 7.2, 0), App.Vector(0, 0, 1), 1.8),
    Part.Circle(App.Vector(168.9, 7.2, 0), App.Vector(0, 0, 1), 1.8),
    Part.Circle(App.Vector(168.9, 37.2, 0), App.Vector(0, 0, 1), 1.8),
], False)
sketch9.addConstraint([
    Sketcher.Constraint("Equal", 0, 1),
    Sketcher.Constraint("Equal", 1, 2),
    Sketcher.Constraint("Equal", 2, 3),
    Sketcher.Constraint("Horizontal", 1, 3, 2, 3),
    Sketcher.Constraint("Horizontal", 0, 3, 3, 3),
    Sketcher.Constraint("Vertical", 0, 3, 1, 3),
    Sketcher.Constraint("Vertical", 2, 3, 3, 3),
    Sketcher.Constraint("Diameter", 0, 3.5),
    Sketcher.Constraint("DistanceY", 1, 3, 0, 3, 30.0),
    Sketcher.Constraint("DistanceX", 1, 3, 2, 3, 50.0),
    Sketcher.Constraint("DistanceY", -1, 1, 0, 3, 37.225),
    Sketcher.Constraint("DistanceX", -1, 1, 0, 3, 118.8653),
])
sketch9.setExpression("Constraints[7]", "Params.sketch9_diameter")
pocket7 = doc.addObject("PartDesign::Pocket", "Pocket006")
body.addObject(pocket7)
pocket7.Profile = sketch9
pocket7.Type = "ThroughAll"

doc.recompute()
